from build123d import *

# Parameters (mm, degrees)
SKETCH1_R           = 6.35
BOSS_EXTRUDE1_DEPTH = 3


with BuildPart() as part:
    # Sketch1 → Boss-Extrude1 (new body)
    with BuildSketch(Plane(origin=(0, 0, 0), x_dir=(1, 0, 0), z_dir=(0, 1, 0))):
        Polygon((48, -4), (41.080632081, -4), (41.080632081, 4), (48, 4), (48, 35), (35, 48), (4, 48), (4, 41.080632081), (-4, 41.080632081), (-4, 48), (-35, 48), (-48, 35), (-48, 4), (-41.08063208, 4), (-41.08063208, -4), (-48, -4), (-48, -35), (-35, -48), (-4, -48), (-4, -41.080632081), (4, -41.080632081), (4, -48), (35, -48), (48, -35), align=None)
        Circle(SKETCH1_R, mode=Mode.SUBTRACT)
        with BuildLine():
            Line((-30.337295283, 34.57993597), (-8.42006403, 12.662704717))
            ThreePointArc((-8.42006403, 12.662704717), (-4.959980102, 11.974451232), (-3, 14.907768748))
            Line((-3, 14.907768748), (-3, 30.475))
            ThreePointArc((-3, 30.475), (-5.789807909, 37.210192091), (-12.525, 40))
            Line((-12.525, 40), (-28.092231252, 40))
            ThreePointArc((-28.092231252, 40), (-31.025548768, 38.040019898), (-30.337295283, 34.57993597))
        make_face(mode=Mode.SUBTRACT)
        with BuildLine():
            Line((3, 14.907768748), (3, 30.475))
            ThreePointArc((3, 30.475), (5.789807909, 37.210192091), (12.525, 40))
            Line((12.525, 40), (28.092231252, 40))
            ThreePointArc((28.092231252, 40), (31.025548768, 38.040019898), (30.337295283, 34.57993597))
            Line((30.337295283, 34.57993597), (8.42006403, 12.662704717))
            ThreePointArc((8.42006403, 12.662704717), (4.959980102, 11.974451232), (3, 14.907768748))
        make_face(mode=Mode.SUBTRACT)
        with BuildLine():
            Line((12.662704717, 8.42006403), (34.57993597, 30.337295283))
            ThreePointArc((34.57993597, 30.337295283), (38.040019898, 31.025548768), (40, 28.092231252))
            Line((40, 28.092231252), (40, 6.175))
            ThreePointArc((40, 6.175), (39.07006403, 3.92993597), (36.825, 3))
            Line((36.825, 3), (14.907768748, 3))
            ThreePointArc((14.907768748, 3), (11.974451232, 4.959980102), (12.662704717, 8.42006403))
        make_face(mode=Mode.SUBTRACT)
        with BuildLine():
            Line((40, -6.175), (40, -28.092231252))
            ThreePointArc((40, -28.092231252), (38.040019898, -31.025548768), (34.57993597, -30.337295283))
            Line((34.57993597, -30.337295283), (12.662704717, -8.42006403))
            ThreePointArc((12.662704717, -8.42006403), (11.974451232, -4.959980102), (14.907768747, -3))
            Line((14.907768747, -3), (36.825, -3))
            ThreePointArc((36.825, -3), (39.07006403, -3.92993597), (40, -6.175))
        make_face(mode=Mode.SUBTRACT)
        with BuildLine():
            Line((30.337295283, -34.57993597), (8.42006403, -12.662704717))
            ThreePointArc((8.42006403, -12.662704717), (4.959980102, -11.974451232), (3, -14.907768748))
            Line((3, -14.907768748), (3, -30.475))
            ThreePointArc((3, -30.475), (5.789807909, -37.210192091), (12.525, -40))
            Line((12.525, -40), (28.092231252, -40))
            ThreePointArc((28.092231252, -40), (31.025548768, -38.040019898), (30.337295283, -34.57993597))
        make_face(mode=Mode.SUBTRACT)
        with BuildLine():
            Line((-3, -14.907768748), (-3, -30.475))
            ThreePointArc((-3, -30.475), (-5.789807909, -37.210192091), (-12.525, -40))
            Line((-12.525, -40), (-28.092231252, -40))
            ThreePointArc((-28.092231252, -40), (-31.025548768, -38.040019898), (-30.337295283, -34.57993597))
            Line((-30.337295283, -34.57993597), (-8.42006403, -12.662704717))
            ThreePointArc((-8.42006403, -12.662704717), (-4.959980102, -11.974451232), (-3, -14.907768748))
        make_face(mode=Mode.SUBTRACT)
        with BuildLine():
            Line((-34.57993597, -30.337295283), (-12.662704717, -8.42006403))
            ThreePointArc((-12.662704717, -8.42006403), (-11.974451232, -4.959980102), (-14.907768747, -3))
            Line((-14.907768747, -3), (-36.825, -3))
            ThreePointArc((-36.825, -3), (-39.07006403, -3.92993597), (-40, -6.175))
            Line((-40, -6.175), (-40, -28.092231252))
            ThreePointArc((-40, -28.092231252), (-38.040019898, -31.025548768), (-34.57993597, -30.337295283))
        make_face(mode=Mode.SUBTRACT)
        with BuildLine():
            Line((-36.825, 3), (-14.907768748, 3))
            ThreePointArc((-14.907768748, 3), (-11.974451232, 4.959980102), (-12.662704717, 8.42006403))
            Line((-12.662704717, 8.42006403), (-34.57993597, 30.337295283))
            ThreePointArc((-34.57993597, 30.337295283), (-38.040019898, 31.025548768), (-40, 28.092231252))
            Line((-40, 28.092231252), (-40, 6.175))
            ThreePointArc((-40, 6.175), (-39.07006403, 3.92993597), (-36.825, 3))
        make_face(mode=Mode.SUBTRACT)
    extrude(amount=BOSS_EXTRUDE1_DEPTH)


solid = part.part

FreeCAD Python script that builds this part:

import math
import FreeCAD as App
import Part
import Sketcher
from FreeCAD import Vector


def add_polygon(sketch, points):
    """Adds a closed chain of lines whose ends are joined by coincident constraints."""
    first, n = sketch.GeometryCount, len(points)
    for a, b in zip(points, points[1:] + points[:1]):
        sketch.addGeometry(Part.LineSegment(App.Vector(*a, 0), App.Vector(*b, 0)), False)
    for i in range(n):
        sketch.addConstraint(Sketcher.Constraint("Coincident", first + i, 2, first + (i + 1) % n, 1))

doc = App.newDocument("Part")
body = doc.addObject("PartDesign::Body", "Body")

# Sketch on XZ plane
sketch1 = doc.addObject("Sketcher::SketchObject", "Sketch")
body.addObject(sketch1)
sketch1.AttachmentSupport = (doc.XZ_Plane, [""])
sketch1.MapMode = "FlatFace"
add_polygon(sketch1, [(48, 4), (41.1, 4), (41.1, -4), (48, -4), (48, -35), (35, -48), (4, -48), (4, -41.1), (-4, -41.1), (-4, -48), (-35, -48), (-48, -35), (-48, -4), (-41.1, -4), (-41.1, 4), (-48, 4), (-48, 35), (-35, 48), (-4, 48), (-4, 41.1), (4, 41.1), (4, 48), (35, 48), (48, 35)])  # lines 0-23
sketch1.addGeometry(Part.ArcOfCircle(Part.Circle(Vector(-6.2, 14.9, 0), Vector(0, 0, 1), 3.2), math.radians(-135), math.radians(0)), False)  # 24
sketch1.addGeometry(Part.LineSegment(Vector(-3, 14.9, 0), Vector(-3, 30.5, 0)), False)  # 25
sketch1.addGeometry(Part.ArcOfCircle(Part.Circle(Vector(-12.5, 30.5, 0), Vector(0, 0, 1), 9.5), math.radians(0), math.radians(90)), False)  # 26
sketch1.addGeometry(Part.LineSegment(Vector(-12.5, 40, 0), Vector(-28.1, 40, 0)), False)  # 27
sketch1.addGeometry(Part.ArcOfCircle(Part.Circle(Vector(-28.1, 36.8, 0), Vector(0, 0, 1), 3.2), math.radians(90), math.radians(225)), False)  # 28
sketch1.addGeometry(Part.LineSegment(Vector(-30.3, 34.6, 0), Vector(-8.4, 12.7, 0)), False)  # 29
sketch1.addGeometry(Part.LineSegment(Vector(-12.7, 8.4, 0), Vector(-34.6, 30.3, 0)), False)  # 30
sketch1.addGeometry(Part.ArcOfCircle(Part.Circle(Vector(-36.8, 28.1, 0), Vector(0, 0, 1), 3.2), math.radians(45), math.radians(180)), False)  # 31
sketch1.addGeometry(Part.LineSegment(Vector(-40, 28.1, 0), Vector(-40, 6.2, 0)), False)  # 32
sketch1.addGeometry(Part.ArcOfCircle(Part.Circle(Vector(-36.8, 6.2, 0), Vector(0, 0, 1), 3.2), math.radians(-180), math.radians(-90)), False)  # 33
sketch1.addGeometry(Part.LineSegment(Vector(-36.8, 3, 0), Vector(-14.9, 3, 0)), False)  # 34
sketch1.addGeometry(Part.ArcOfCircle(Part.Circle(Vector(-14.9, 6.2, 0), Vector(0, 0, 1), 3.2), math.radians(-90), math.radians(45)), False)  # 35
sketch1.addGeometry(Part.LineSegment(Vector(8.4, 12.7, 0), Vector(30.3, 34.6, 0)), False)  # 36
sketch1.addGeometry(Part.ArcOfCircle(Part.Circle(Vector(28.1, 36.8, 0), Vector(0, 0, 1), 3.2), math.radians(-45), math.radians(90)), False)  # 37
sketch1.addGeometry(Part.LineSegment(Vector(28.1, 40, 0), Vector(12.5, 40, 0)), False)  # 38
sketch1.addGeometry(Part.ArcOfCircle(Part.Circle(Vector(12.5, 30.5, 0), Vector(0, 0, 1), 9.5), math.radians(90), math.radians(180)), False)  # 39
sketch1.addGeometry(Part.LineSegment(Vector(3, 30.5, 0), Vector(3, 14.9, 0)), False)  # 40
sketch1.addGeometry(Part.ArcOfCircle(Part.Circle(Vector(6.2, 14.9, 0), Vector(0, 0, 1), 3.2), math.radians(180), math.radians(315)), False)  # 41
sketch1.addGeometry(Part.ArcOfCircle(Part.Circle(Vector(36.8, 6.2, 0), Vector(0, 0, 1), 3.2), math.radians(-90), math.radians(0)), False)  # 42
sketch1.addGeometry(Part.LineSegment(Vector(40, 6.2, 0), Vector(40, 28.1, 0)), False)  # 43
sketch1.addGeometry(Part.ArcOfCircle(Part.Circle(Vector(36.8, 28.1, 0), Vector(0, 0, 1), 3.2), math.radians(0), math.radians(135)), False)  # 44
sketch1.addGeometry(Part.LineSegment(Vector(34.6, 30.3, 0), Vector(12.7, 8.4, 0)), False)  # 45
sketch1.addGeometry(Part.ArcOfCircle(Part.Circle(Vector(14.9, 6.2, 0), Vector(0, 0, 1), 3.2), math.radians(135), math.radians(270)), False)  # 46
sketch1.addGeometry(Part.LineSegment(Vector(14.9, 3, 0), Vector(36.8, 3, 0)), False)  # 47
sketch1.addGeometry(Part.LineSegment(Vector(-14.9, -3, 0), Vector(-36.8, -3, 0)), False)  # 48
sketch1.addGeometry(Part.ArcOfCircle(Part.Circle(Vector(-36.8, -6.2, 0), Vector(0, 0, 1), 3.2), math.radians(90), math.radians(180)), False)  # 49
sketch1.addGeometry(Part.LineSegment(Vector(-40, -6.2, 0), Vector(-40, -28.1, 0)), False)  # 50
sketch1.addGeometry(Part.ArcOfCircle(Part.Circle(Vector(-36.8, -28.1, 0), Vector(0, 0, 1), 3.2), math.radians(180), math.radians(315)), False)  # 51
sketch1.addGeometry(Part.LineSegment(Vector(-34.6, -30.3, 0), Vector(-12.7, -8.4, 0)), False)  # 52
sketch1.addGeometry(Part.ArcOfCircle(Part.Circle(Vector(-14.9, -6.2, 0), Vector(0, 0, 1), 3.2), math.radians(-45), math.radians(90)), False)  # 53
sketch1.addGeometry(Part.LineSegment(Vector(-8.4, -12.7, 0), Vector(-30.3, -34.6, 0)), False)  # 54
sketch1.addGeometry(Part.ArcOfCircle(Part.Circle(Vector(-28.1, -36.8, 0), Vector(0, 0, 1), 3.2), math.radians(135), math.radians(270)), False)  # 55
sketch1.addGeometry(Part.LineSegment(Vector(-28.1, -40, 0), Vector(-12.5, -40, 0)), False)  # 56
sketch1.addGeometry(Part.ArcOfCircle(Part.Circle(Vector(-12.5, -30.5, 0), Vector(0, 0, 1), 9.5), math.radians(-90), math.radians(0)), False)  # 57
sketch1.addGeometry(Part.LineSegment(Vector(-3, -30.5, 0), Vector(-3, -14.9, 0)), False)  # 58
sketch1.addGeometry(Part.ArcOfCircle(Part.Circle(Vector(-6.2, -14.9, 0), Vector(0, 0, 1), 3.2), math.radians(0), math.radians(135)), False)  # 59
sketch1.addGeometry(Part.Circle(Vector(0, 0, 0), Vector(0, 0, 1), 6.3), False)  # 60
sketch1.addGeometry(Part.ArcOfCircle(Part.Circle(Vector(14.9, -6.2, 0), Vector(0, 0, 1), 3.2), math.radians(90), math.radians(225)), False)  # 61
sketch1.addGeometry(Part.LineSegment(Vector(12.7, -8.4, 0), Vector(34.6, -30.3, 0)), False)  # 62
sketch1.addGeometry(Part.ArcOfCircle(Part.Circle(Vector(36.8, -28.1, 0), Vector(0, 0, 1), 3.2), math.radians(-135), math.radians(0)), False)  # 63
sketch1.addGeometry(Part.LineSegment(Vector(40, -28.1, 0), Vector(40, -6.2, 0)), False)  # 64
sketch1.addGeometry(Part.ArcOfCircle(Part.Circle(Vector(36.8, -6.2, 0), Vector(0, 0, 1), 3.2), math.radians(0), math.radians(90)), False)  # 65
sketch1.addGeometry(Part.LineSegment(Vector(36.8, -3, 0), Vector(14.9, -3, 0)), False)  # 66
sketch1.addGeometry(Part.ArcOfCircle(Part.Circle(Vector(6.2, -14.9, 0), Vector(0, 0, 1), 3.2), math.radians(45), math.radians(180)), False)  # 67
sketch1.addGeometry(Part.LineSegment(Vector(3, -14.9, 0), Vector(3, -30.5, 0)), False)  # 68
sketch1.addGeometry(Part.ArcOfCircle(Part.Circle(Vector(12.5, -30.5, 0), Vector(0, 0, 1), 9.5), math.radians(180), math.radians(270)), False)  # 69
sketch1.addGeometry(Part.LineSegment(Vector(12.5, -40, 0), Vector(28.1, -40, 0)), False)  # 70
sketch1.addGeometry(Part.ArcOfCircle(Part.Circle(Vector(28.1, -36.8, 0), Vector(0, 0, 1), 3.2), math.radians(-90), math.radians(45)), False)  # 71
sketch1.addGeometry(Part.LineSegment(Vector(30.3, -34.6, 0), Vector(8.4, -12.7, 0)), False)  # 72
sketch1.addConstraint(Sketcher.Constraint("Tangent", 24, 2, 25, 1))
sketch1.addConstraint(Sketcher.Constraint("Tangent", 25, 2, 26, 1))
sketch1.addConstraint(Sketcher.Constraint("Tangent", 26, 2, 27, 1))
sketch1.addConstraint(Sketcher.Constraint("Tangent", 27, 2, 28, 1))
sketch1.addConstraint(Sketcher.Constraint("Tangent", 28, 2, 29, 1))
sketch1.addConstraint(Sketcher.Constraint("Tangent", 29, 2, 24, 1))
sketch1.addConstraint(Sketcher.Constraint("Tangent", 30, 2, 31, 1))
sketch1.addConstraint(Sketcher.Constraint("Tangent", 31, 2, 32, 1))
sketch1.addConstraint(Sketcher.Constraint("Tangent", 32, 2, 33, 1))
sketch1.addConstraint(Sketcher.Constraint("Tangent", 33, 2, 34, 1))
sketch1.addConstraint(Sketcher.Constraint("Tangent", 34, 2, 35, 1))
sketch1.addConstraint(Sketcher.Constraint("Tangent", 35, 2, 30, 1))
sketch1.addConstraint(Sketcher.Constraint("Tangent", 36, 2, 37, 1))
sketch1.addConstraint(Sketcher.Constraint("Tangent", 37, 2, 38, 1))
sketch1.addConstraint(Sketcher.Constraint("Tangent", 38, 2, 39, 1))
sketch1.addConstraint(Sketcher.Constraint("Tangent", 39, 2, 40, 1))
sketch1.addConstraint(Sketcher.Constraint("Tangent", 40, 2, 41, 1))
sketch1.addConstraint(Sketcher.Constraint("Tangent", 41, 2, 36, 1))
sketch1.addConstraint(Sketcher.Constraint("Tangent", 42, 2, 43, 1))
sketch1.addConstraint(Sketcher.Constraint("Tangent", 43, 2, 44, 1))
sketch1.addConstraint(Sketcher.Constraint("Tangent", 44, 2, 45, 1))
sketch1.addConstraint(Sketcher.Constraint("Tangent", 45, 2, 46, 1))
sketch1.addConstraint(Sketcher.Constraint("Tangent", 46, 2, 47, 1))
sketch1.addConstraint(Sketcher.Constraint("Tangent", 47, 2, 42, 1))
sketch1.addConstraint(Sketcher.Constraint("Tangent", 48, 2, 49, 1))
sketch1.addConstraint(Sketcher.Constraint("Tangent", 49, 2, 50, 1))
sketch1.addConstraint(Sketcher.Constraint("Tangent", 50, 2, 51, 1))
sketch1.addConstraint(Sketcher.Constraint("Tangent", 51, 2, 52, 1))
sketch1.addConstraint(Sketcher.Constraint("Tangent", 52, 2, 53, 1))
sketch1.addConstraint(Sketcher.Constraint("Tangent", 53, 2, 48, 1))
sketch1.addConstraint(Sketcher.Constraint("Tangent", 54, 2, 55, 1))
sketch1.addConstraint(Sketcher.Constraint("Tangent", 55, 2, 56, 1))
sketch1.addConstraint(Sketcher.Constraint("Tangent", 56, 2, 57, 1))
sketch1.addConstraint(Sketcher.Constraint("Tangent", 57, 2, 58, 1))
sketch1.addConstraint(Sketcher.Constraint("Tangent", 58, 2, 59, 1))
sketch1.addConstraint(Sketcher.Constraint("Tangent", 59, 2, 54, 1))
sketch1.addConstraint(Sketcher.Constraint("Tangent", 61, 2, 62, 1))
sketch1.addConstraint(Sketcher.Constraint("Tangent", 62, 2, 63, 1))
sketch1.addConstraint(Sketcher.Constraint("Tangent", 63, 2, 64, 1))
sketch1.addConstraint(Sketcher.Constraint("Tangent", 64, 2, 65, 1))
sketch1.addConstraint(Sketcher.Constraint("Tangent", 65, 2, 66, 1))
sketch1.addConstraint(Sketcher.Constraint("Tangent", 66, 2, 61, 1))
sketch1.addConstraint(Sketcher.Constraint("Tangent", 67, 2, 68, 1))
sketch1.addConstraint(Sketcher.Constraint("Tangent", 68, 2, 69, 1))
sketch1.addConstraint(Sketcher.Constraint("Tangent", 69, 2, 70, 1))
sketch1.addConstraint(Sketcher.Constraint("Tangent", 70, 2, 71, 1))
sketch1.addConstraint(Sketcher.Constraint("Tangent", 71, 2, 72, 1))
sketch1.addConstraint(Sketcher.Constraint("Tangent", 72, 2, 67, 1))
sketch1.addConstraint(Sketcher.Constraint("Horizontal", 0))
sketch1.addConstraint(Sketcher.Constraint("Vertical", 1))
sketch1.addConstraint(Sketcher.Constraint("Horizontal", 2))
sketch1.addConstraint(Sketcher.Constraint("Vertical", 3))
sketch1.addConstraint(Sketcher.Constraint("Horizontal", 5))
sketch1.addConstraint(Sketcher.Constraint("Vertical", 6))
sketch1.addConstraint(Sketcher.Constraint("Horizontal", 7))
sketch1.addConstraint(Sketcher.Constraint("Vertical", 8))
sketch1.addConstraint(Sketcher.Constraint("Horizontal", 9))
sketch1.addConstraint(Sketcher.Constraint("Vertical", 11))
sketch1.addConstraint(Sketcher.Constraint("Horizontal", 12))
sketch1.addConstraint(Sketcher.Constraint("Vertical", 13))
sketch1.addConstraint(Sketcher.Constraint("Horizontal", 14))
sketch1.addConstraint(Sketcher.Constraint("Vertical", 15))
sketch1.addConstraint(Sketcher.Constraint("Horizontal", 17))
sketch1.addConstraint(Sketcher.Constraint("Vertical", 18))
sketch1.addConstraint(Sketcher.Constraint("Horizontal", 19))
sketch1.addConstraint(Sketcher.Constraint("Vertical", 20))
sketch1.addConstraint(Sketcher.Constraint("Horizontal", 21))
sketch1.addConstraint(Sketcher.Constraint("Vertical", 23))
sketch1.addConstraint(Sketcher.Constraint("Vertical", 25))
sketch1.addConstraint(Sketcher.Constraint("Horizontal", 27))
sketch1.addConstraint(Sketcher.Constraint("Vertical", 32))
sketch1.addConstraint(Sketcher.Constraint("Horizontal", 34))
sketch1.addConstraint(Sketcher.Constraint("Horizontal", 38))
sketch1.addConstraint(Sketcher.Constraint("Vertical", 40))
sketch1.addConstraint(Sketcher.Constraint("Vertical", 43))
sketch1.addConstraint(Sketcher.Constraint("Horizontal", 47))
sketch1.addConstraint(Sketcher.Constraint("Horizontal", 48))
sketch1.addConstraint(Sketcher.Constraint("Vertical", 50))
sketch1.addConstraint(Sketcher.Constraint("Horizontal", 56))
sketch1.addConstraint(Sketcher.Constraint("Vertical", 58))
sketch1.addConstraint(Sketcher.Constraint("Vertical", 64))
sketch1.addConstraint(Sketcher.Constraint("Horizontal", 66))
sketch1.addConstraint(Sketcher.Constraint("Vertical", 68))
sketch1.addConstraint(Sketcher.Constraint("Horizontal", 70))
sketch1.addConstraint(Sketcher.Constraint("Coincident", 60, 3, -1, 1))
sketch1.addConstraint(Sketcher.Constraint("Equal", 24, 28))
sketch1.addConstraint(Sketcher.Constraint("Equal", 28, 31))
sketch1.addConstraint(Sketcher.Constraint("Equal", 31, 33))
sketch1.addConstraint(Sketcher.Constraint("Equal", 33, 35))
sketch1.addConstraint(Sketcher.Constraint("Equal", 35, 37))
sketch1.addConstraint(Sketcher.Constraint("Equal", 26, 39))
sketch1.addConstraint(Sketcher.Constraint("Equal", 37, 41))
sketch1.addConstraint(Sketcher.Constraint("Equal", 41, 42))
sketch1.addConstraint(Sketcher.Constraint("Equal", 42, 44))
sketch1.addConstraint(Sketcher.Constraint("Equal", 44, 46))
sketch1.addConstraint(Sketcher.Constraint("Equal", 46, 49))
sketch1.addConstraint(Sketcher.Constraint("Equal", 49, 51))
sketch1.addConstraint(Sketcher.Constraint("Equal", 51, 53))
sketch1.addConstraint(Sketcher.Constraint("Equal", 53, 55))
sketch1.addConstraint(Sketcher.Constraint("Equal", 39, 57))
sketch1.addConstraint(Sketcher.Constraint("Equal", 55, 59))
sketch1.addConstraint(Sketcher.Constraint("Equal", 59, 61))
sketch1.addConstraint(Sketcher.Constraint("Equal", 61, 63))
sketch1.addConstraint(Sketcher.Constraint("Equal", 63, 65))
sketch1.addConstraint(Sketcher.Constraint("Equal", 65, 67))
sketch1.addConstraint(Sketcher.Constraint("Equal", 57, 69))
sketch1.addConstraint(Sketcher.Constraint("Equal", 67, 71))
sketch1.addConstraint(Sketcher.Constraint("Symmetric", 42, 3, 49, 3, -1, 1))
sketch1.addConstraint(Sketcher.Constraint("Symmetric", 37, 3, 55, 3, -1, 1))
sketch1.addConstraint(Sketcher.Constraint("Symmetric", 41, 3, 59, 3, -1, 1))
sketch1.addConstraint(Sketcher.Constraint("Symmetric", 35, 3, 61, 3, -1, 1))
sketch1.addConstraint(Sketcher.Constraint("Symmetric", 31, 3, 63, 3, -1, 1))
sketch1.addConstraint(Sketcher.Constraint("Symmetric", 24, 3, 67, 3, -1, 1))
sketch1.addConstraint(Sketcher.Constraint("Symmetric", 28, 3, 71, 3, -1, 1))
sketch1.addConstraint(Sketcher.Constraint("Symmetric", 0, 2, 12, 2, -1, 1))
sketch1.addConstraint(Sketcher.Constraint("Symmetric", 2, 2, 14, 2, -1, 1))
sketch1.addConstraint(Sketcher.Constraint("Symmetric", 4, 2, 16, 2, -1, 1))
sketch1.addConstraint(Sketcher.Constraint("Symmetric", 6, 2, 18, 2, -1, 1))
sketch1.addConstraint(Sketcher.Constraint("Symmetric", 8, 2, 20, 2, -1, 1))
sketch1.addConstraint(Sketcher.Constraint("Symmetric", 10, 2, 22, 2, -1, 1))
sketch1.addConstraint(Sketcher.Constraint("Symmetric", 44, 2, 51, 2, -1, 1))
sketch1.addConstraint(Sketcher.Constraint("Symmetric", 28, 3, 37, 3, -2))
sketch1.addConstraint(Sketcher.Constraint("Symmetric", 24, 3, 41, 3, -2))
sketch1.addConstraint(Sketcher.Constraint("Symmetric", 33, 3, 42, 3, -2))
sketch1.addConstraint(Sketcher.Constraint("Symmetric", 5, 2, 8, 2, -2))
sketch1.addConstraint(Sketcher.Constraint("Symmetric", 3, 2, 10, 2, -2))
sketch1.addConstraint(Sketcher.Constraint("Symmetric", 30, 2, 44, 2, -2))
sketch1.addConstraint(Sketcher.Constraint("Perpendicular", 4, 10))
sketch1.addConstraint(Sketcher.Constraint("Perpendicular", 10, 16))
sketch1.addConstraint(Sketcher.Constraint("Perpendicular", 16, 22))
sketch1.addConstraint(Sketcher.Constraint("Parallel", 22, 29))
sketch1.addConstraint(Sketcher.Constraint("Parallel", 29, 30))
sketch1.addConstraint(Sketcher.Constraint("Perpendicular", 30, 36))
sketch1.addConstraint(Sketcher.Constraint("Horizontal", 2, 2, 11, 2))
sketch1.addConstraint(Sketcher.Constraint("Equal", 19, 1))
sketch1.addConstraint(Sketcher.Constraint("Equal", 21, 3))
sketch1.addConstraint(Sketcher.Constraint("Equal", 14, 6))
sketch1.addConstraint(Sketcher.Constraint("Equal", 29, 30))
sketch1.addConstraint(Sketcher.Constraint("Diameter", 60, 12.7))
sketch1.addConstraint(Sketcher.Constraint("DistanceX", 5, 2, 5, 1, 31.0))
sketch1.addConstraint(Sketcher.Constraint("DistanceX", 7, 2, 7, 1, 8.0))
sketch1.addConstraint(Sketcher.Constraint("DistanceX", -1, 1, 2, 2, 48.0))
sketch1.addConstraint(Sketcher.Constraint("DistanceX", 24, 2, -1, 1, 3.0))
sketch1.addConstraint(Sketcher.Constraint("DistanceY", -1, 1, 26, 2, 40.0))
sketch1.addConstraint(Sketcher.Constraint("DistanceX", 31, 2, -1, 1, 40.0))
sketch1.addConstraint(Sketcher.Constraint("DistanceY", -1, 1, 33, 2, 3.0))
sketch1.addConstraint(Sketcher.Constraint("Radius", 24, 3.175))
sketch1.addConstraint(Sketcher.Constraint("Radius", 26, 9.525))
sketch1.addConstraint(Sketcher.Constraint("DistanceX", 27, 2, 27, 1, 15.567231))
sketch1.addConstraint(Sketcher.Constraint("DistanceX", 0, 2, 0, 1, 6.919368))
pad1 = doc.addObject("PartDesign::Pad", "Pad")
body.addObject(pad1)
pad1.Profile = sketch1
pad1.Length = 3
pad1.Reversed = True

doc.recompute()
